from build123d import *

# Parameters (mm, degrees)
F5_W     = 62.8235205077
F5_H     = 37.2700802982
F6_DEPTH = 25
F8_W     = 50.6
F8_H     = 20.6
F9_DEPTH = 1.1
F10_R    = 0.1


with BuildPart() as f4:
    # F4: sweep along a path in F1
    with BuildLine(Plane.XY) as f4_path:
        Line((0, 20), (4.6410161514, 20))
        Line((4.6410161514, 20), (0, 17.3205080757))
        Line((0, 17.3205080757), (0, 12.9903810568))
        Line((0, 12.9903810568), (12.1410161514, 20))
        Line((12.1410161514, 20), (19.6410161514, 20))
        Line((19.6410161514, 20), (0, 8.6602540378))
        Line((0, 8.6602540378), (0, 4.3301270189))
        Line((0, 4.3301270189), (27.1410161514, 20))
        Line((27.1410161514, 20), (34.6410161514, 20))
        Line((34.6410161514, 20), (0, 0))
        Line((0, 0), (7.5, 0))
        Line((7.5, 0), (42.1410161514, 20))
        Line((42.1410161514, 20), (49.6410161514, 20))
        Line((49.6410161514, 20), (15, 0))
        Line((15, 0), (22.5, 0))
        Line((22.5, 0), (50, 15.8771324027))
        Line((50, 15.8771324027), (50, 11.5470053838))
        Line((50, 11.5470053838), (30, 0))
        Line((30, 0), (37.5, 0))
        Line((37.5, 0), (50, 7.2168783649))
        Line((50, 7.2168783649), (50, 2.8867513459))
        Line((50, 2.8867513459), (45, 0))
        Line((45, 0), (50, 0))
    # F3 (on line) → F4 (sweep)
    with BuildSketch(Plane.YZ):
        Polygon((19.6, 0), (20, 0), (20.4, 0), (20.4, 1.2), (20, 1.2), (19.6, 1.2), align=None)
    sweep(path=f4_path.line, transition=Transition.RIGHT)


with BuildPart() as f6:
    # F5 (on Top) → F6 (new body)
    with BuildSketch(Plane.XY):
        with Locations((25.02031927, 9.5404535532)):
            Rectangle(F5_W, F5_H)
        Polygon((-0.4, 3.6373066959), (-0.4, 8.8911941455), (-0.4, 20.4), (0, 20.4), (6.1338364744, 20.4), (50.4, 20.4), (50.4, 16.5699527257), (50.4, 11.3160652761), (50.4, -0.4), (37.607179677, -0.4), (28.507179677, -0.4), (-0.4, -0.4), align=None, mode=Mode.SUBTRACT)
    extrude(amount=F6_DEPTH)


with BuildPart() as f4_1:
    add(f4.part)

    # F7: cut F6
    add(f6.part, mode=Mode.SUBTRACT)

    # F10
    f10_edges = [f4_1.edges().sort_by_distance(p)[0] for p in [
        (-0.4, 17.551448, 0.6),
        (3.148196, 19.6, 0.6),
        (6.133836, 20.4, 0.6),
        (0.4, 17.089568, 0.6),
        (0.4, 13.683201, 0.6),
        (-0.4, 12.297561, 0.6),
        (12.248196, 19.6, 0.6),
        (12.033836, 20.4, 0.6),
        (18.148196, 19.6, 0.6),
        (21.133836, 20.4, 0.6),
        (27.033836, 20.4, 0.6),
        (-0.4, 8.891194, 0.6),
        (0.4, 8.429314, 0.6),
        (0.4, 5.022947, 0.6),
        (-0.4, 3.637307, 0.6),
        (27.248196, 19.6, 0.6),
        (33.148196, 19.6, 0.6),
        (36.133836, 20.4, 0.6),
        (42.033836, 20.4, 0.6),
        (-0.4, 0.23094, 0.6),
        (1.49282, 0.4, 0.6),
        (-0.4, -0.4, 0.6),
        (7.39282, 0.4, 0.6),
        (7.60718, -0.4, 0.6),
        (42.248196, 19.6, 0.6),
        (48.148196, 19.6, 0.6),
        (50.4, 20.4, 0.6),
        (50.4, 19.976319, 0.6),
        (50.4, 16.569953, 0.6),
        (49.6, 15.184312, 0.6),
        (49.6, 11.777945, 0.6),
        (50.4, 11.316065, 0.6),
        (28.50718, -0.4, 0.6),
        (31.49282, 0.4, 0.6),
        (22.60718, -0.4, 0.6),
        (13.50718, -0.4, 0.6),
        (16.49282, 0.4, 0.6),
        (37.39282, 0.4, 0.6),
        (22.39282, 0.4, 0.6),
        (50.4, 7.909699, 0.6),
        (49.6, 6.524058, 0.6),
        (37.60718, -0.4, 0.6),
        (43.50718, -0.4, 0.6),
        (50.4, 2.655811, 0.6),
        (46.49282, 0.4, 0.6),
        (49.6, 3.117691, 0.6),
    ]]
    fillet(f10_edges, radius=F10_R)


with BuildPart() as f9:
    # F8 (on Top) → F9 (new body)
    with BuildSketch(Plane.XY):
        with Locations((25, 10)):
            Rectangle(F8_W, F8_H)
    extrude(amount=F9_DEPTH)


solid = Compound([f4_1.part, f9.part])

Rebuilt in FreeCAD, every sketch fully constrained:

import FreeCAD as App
import Part
import Sketcher

V = App.Vector
Q = App.Units.Quantity


def edges_at(feature, points):
    """Names of the edges that pass closest to the given points."""
    edges = feature.Shape.Edges
    near = lambda p: min(range(len(edges)), key=lambda i: edges[i].distToShape(Part.Vertex(*p))[0])
    return sorted({f"Edge{near(p) + 1}" for p in points})

doc = App.newDocument("Part")
body = doc.addObject("PartDesign::Body", "Body")

# Sketch on YZ plane
sketch1 = body.newObject("Sketcher::SketchObject", "Sketch")
sketch1.AttachmentSupport = (doc.getObject("YZ_Plane"), [""])
sketch1.MapMode = "FlatFace"
sketch1.addGeometry([
    Part.LineSegment(V(19.6, 0, 0), V(20.4, 0, 0)),
    Part.LineSegment(V(20.4, 0, 0), V(20.4, 1.2, 0)),
    Part.LineSegment(V(20.4, 1.2, 0), V(19.6, 1.2, 0)),
    Part.LineSegment(V(19.6, 1.2, 0), V(19.6, 0, 0)),
], False)
sketch1.addConstraint([
    Sketcher.Constraint("Coincident", 0, 2, 1, 1),
    Sketcher.Constraint("Coincident", 1, 2, 2, 1),
    Sketcher.Constraint("Coincident", 2, 2, 3, 1),
    Sketcher.Constraint("Coincident", 3, 2, 0, 1),
    Sketcher.Constraint("Horizontal", 0),
    Sketcher.Constraint("Vertical", 1),
    Sketcher.Constraint("Horizontal", 2),
    Sketcher.Constraint("Vertical", 3),
    Sketcher.Constraint("PointOnObject", 0, 2, -1),
    Sketcher.Constraint("DistanceX", 0, 1, 0, 2, Q("0.8 mm")),
    Sketcher.Constraint("DistanceY", 1, 1, 1, 2, Q("1.2 mm")),
    Sketcher.Constraint("DistanceX", -1, 1, 0, 2, Q("20.4 mm")),
])

# Sketch on XY plane
sketch2 = body.newObject("Sketcher::SketchObject", "Sketch001")
sketch2.AttachmentSupport = (doc.getObject("XY_Plane"), [""])
sketch2.MapMode = "FlatFace"
sketch2.addGeometry([
    Part.LineSegment(V(0, 20, 0), V(4.6, 20, 0)),  # 0
    Part.LineSegment(V(4.6, 20, 0), V(0, 17.3, 0)),  # 1
    Part.LineSegment(V(0, 17.3, 0), V(0, 13, 0)),  # 2
    Part.LineSegment(V(0, 13, 0), V(12.1, 20, 0)),  # 3
    Part.LineSegment(V(12.1, 20, 0), V(19.6, 20, 0)),  # 4
    Part.LineSegment(V(19.6, 20, 0), V(0, 8.7, 0)),  # 5
    Part.LineSegment(V(0, 8.7, 0), V(0, 4.3, 0)),  # 6
    Part.LineSegment(V(0, 4.3, 0), V(27.1, 20, 0)),  # 7
    Part.LineSegment(V(27.1, 20, 0), V(34.6, 20, 0)),  # 8
    Part.LineSegment(V(34.6, 20, 0), V(0, 0, 0)),  # 9
    Part.LineSegment(V(0, 0, 0), V(7.5, 0, 0)),  # 10
    Part.LineSegment(V(7.5, 0, 0), V(42.1, 20, 0)),  # 11
    Part.LineSegment(V(42.1, 20, 0), V(49.6, 20, 0)),  # 12
    Part.LineSegment(V(49.6, 20, 0), V(15, 0, 0)),  # 13
    Part.LineSegment(V(15, 0, 0), V(22.5, 0, 0)),  # 14
    Part.LineSegment(V(22.5, 0, 0), V(50, 15.9, 0)),  # 15
    Part.LineSegment(V(50, 15.9, 0), V(50, 11.5, 0)),  # 16
    Part.LineSegment(V(50, 11.5, 0), V(30, 0, 0)),  # 17
    Part.LineSegment(V(30, 0, 0), V(37.5, 0, 0)),  # 18
    Part.LineSegment(V(37.5, 0, 0), V(50, 7.2, 0)),  # 19
    Part.LineSegment(V(50, 7.2, 0), V(50, 2.9, 0)),  # 20
    Part.LineSegment(V(50, 2.9, 0), V(45, 0, 0)),  # 21
    Part.LineSegment(V(45, 0, 0), V(50, 0, 0)),  # 22
], False)
sketch2.addConstraint([
    Sketcher.Constraint("Coincident", 0, 2, 1, 1),
    Sketcher.Constraint("Coincident", 1, 2, 2, 1),
    Sketcher.Constraint("Coincident", 2, 2, 3, 1),
    Sketcher.Constraint("Coincident", 3, 2, 4, 1),
    Sketcher.Constraint("Coincident", 4, 2, 5, 1),
    Sketcher.Constraint("Coincident", 5, 2, 6, 1),
    Sketcher.Constraint("Coincident", 6, 2, 7, 1),
    Sketcher.Constraint("Coincident", 7, 2, 8, 1),
    Sketcher.Constraint("Coincident", 8, 2, 9, 1),
    Sketcher.Constraint("Coincident", 9, 2, 10, 1),
    Sketcher.Constraint("Coincident", 10, 2, 11, 1),
    Sketcher.Constraint("Coincident", 11, 2, 12, 1),
    Sketcher.Constraint("Coincident", 12, 2, 13, 1),
    Sketcher.Constraint("Coincident", 13, 2, 14, 1),
    Sketcher.Constraint("Coincident", 14, 2, 15, 1),
    Sketcher.Constraint("Coincident", 15, 2, 16, 1),
    Sketcher.Constraint("Coincident", 16, 2, 17, 1),
    Sketcher.Constraint("Coincident", 17, 2, 18, 1),
    Sketcher.Constraint("Coincident", 18, 2, 19, 1),
    Sketcher.Constraint("Coincident", 19, 2, 20, 1),
    Sketcher.Constraint("Coincident", 20, 2, 21, 1),
    Sketcher.Constraint("Coincident", 21, 2, 22, 1),
    Sketcher.Constraint("Horizontal", 0),
    Sketcher.Constraint("Vertical", 2),
    Sketcher.Constraint("Horizontal", 4),
    Sketcher.Constraint("Vertical", 6),
    Sketcher.Constraint("Horizontal", 8),
    Sketcher.Constraint("Horizontal", 10),
    Sketcher.Constraint("Horizontal", 12),
    Sketcher.Constraint("Horizontal", 14),
    Sketcher.Constraint("Vertical", 16),
    Sketcher.Constraint("Horizontal", 18),
    Sketcher.Constraint("Vertical", 20),
    Sketcher.Constraint("Horizontal", 22),
    Sketcher.Constraint("Coincident", 9, 2, -1, 1),
    Sketcher.Constraint("PointOnObject", 0, 1, -2),
    Sketcher.Constraint("PointOnObject", 1, 2, -2),
    Sketcher.Constraint("PointOnObject", 5, 2, -2),
    Sketcher.Constraint("PointOnObject", 13, 2, -1),
    Sketcher.Constraint("PointOnObject", 17, 2, -1),
    Sketcher.Constraint("PointOnObject", 21, 2, -1),
    Sketcher.Constraint("Parallel", 1, 3),
    Sketcher.Constraint("Parallel", 3, 5),
    Sketcher.Constraint("Parallel", 5, 7),
    Sketcher.Constraint("Parallel", 7, 9),
    Sketcher.Constraint("Parallel", 9, 11),
    Sketcher.Constraint("Parallel", 11, 13),
    Sketcher.Constraint("Parallel", 13, 15),
    Sketcher.Constraint("Parallel", 15, 17),
    Sketcher.Constraint("Parallel", 17, 19),
    Sketcher.Constraint("Parallel", 19, 21),
    Sketcher.Constraint("Horizontal", 0, 2, 3, 2),
    Sketcher.Constraint("Horizontal", 4, 2, 7, 2),
    Sketcher.Constraint("Horizontal", 8, 2, 11, 2),
    Sketcher.Constraint("Vertical", 16, 2, 19, 2),
    Sketcher.Constraint("Vertical", 20, 2, 22, 2),
    Sketcher.Constraint("Equal", 4, 8),
    Sketcher.Constraint("Equal", 8, 10),
    Sketcher.Constraint("Equal", 10, 12),
    Sketcher.Constraint("Equal", 12, 14),
    Sketcher.Constraint("Equal", 14, 18),
    Sketcher.Constraint("Equal", 2, 6),
    Sketcher.Constraint("Equal", 6, 16),
    Sketcher.Constraint("Equal", 16, 20),
    Sketcher.Constraint("DistanceX", 22, 1, 22, 2, Q("5 mm")),
    Sketcher.Constraint("Angle", 1, Q("-150 deg")),
    Sketcher.Constraint("Distance", 9, Q("40 mm")),
    Sketcher.Constraint("DistanceX", 4, 1, 4, 2, Q("7.5 mm")),
    Sketcher.Constraint("DistanceX", -1, 1, 15, 2, Q("50 mm")),
])
doc.recompute()

additivepipe = body.newObject("PartDesign::AdditivePipe", "AdditivePipe")
additivepipe.Profile = sketch1
additivepipe.Spine = (sketch2, ["Edge1", "Edge2", "Edge3", "Edge4", "Edge5", "Edge6", "Edge7", "Edge8", "Edge9", "Edge10", "Edge11", "Edge12", "Edge13", "Edge14", "Edge15", "Edge16", "Edge17", "Edge18", "Edge19", "Edge20", "Edge21", "Edge22", "Edge23"])
additivepipe.Transition = "Right corner"
body2 = doc.addObject("PartDesign::Body", "Body001")

# Sketch on XY plane
sketch3 = body2.newObject("Sketcher::SketchObject", "Sketch002")
sketch3.AttachmentSupport = (doc.getObject("XY_Plane001"), [""])
sketch3.MapMode = "FlatFace"
sketch3.addGeometry([
    Part.LineSegment(V(-6, 28, 0), V(-6, -9, 0)),  # 0
    Part.LineSegment(V(-6, -9, 0), V(56, -9, 0)),  # 1
    Part.LineSegment(V(56, -9, 0), V(56, 28, 0)),  # 2
    Part.LineSegment(V(56, 28, 0), V(-6, 28, 0)),  # 3
    Part.LineSegment(V(0, 0, 0), V(0, 20, 0)),  # 4
    Part.LineSegment(V(0, 20, 0), V(50, 20, 0)),  # 5
    Part.LineSegment(V(50, 20, 0), V(50, 0, 0)),  # 6
    Part.LineSegment(V(50, 0, 0), V(0, 0, 0)),  # 7
], False)
sketch3.addConstraint([
    Sketcher.Constraint("Coincident", 0, 2, 1, 1),
    Sketcher.Constraint("Coincident", 1, 2, 2, 1),
    Sketcher.Constraint("Coincident", 2, 2, 3, 1),
    Sketcher.Constraint("Coincident", 3, 2, 0, 1),
    Sketcher.Constraint("Coincident", 4, 2, 5, 1),
    Sketcher.Constraint("Coincident", 5, 2, 6, 1),
    Sketcher.Constraint("Coincident", 6, 2, 7, 1),
    Sketcher.Constraint("Coincident", 7, 2, 4, 1),
    Sketcher.Constraint("Vertical", 0),
    Sketcher.Constraint("Horizontal", 1),
    Sketcher.Constraint("Vertical", 2),
    Sketcher.Constraint("Horizontal", 3),
    Sketcher.Constraint("Vertical", 4),
    Sketcher.Constraint("Horizontal", 5),
    Sketcher.Constraint("Vertical", 6),
    Sketcher.Constraint("Horizontal", 7),
    Sketcher.Constraint("DistanceX", 5, 1, 5, 2, Q("50.8 mm")),
    Sketcher.Constraint("DistanceY", 4, 1, 4, 2, Q("20.8 mm")),
    Sketcher.Constraint("DistanceX", 4, 2, -1, 1, Q("0.4 mm")),
    Sketcher.Constraint("DistanceY", -1, 1, 4, 2, Q("20.4 mm")),
    Sketcher.Constraint("DistanceX", 1, 1, 1, 2, Q("62.823521 mm")),
    Sketcher.Constraint("DistanceY", 0, 2, 0, 1, Q("37.27008 mm")),
    Sketcher.Constraint("DistanceX", 0, 2, -1, 1, Q("6.391441 mm")),
    Sketcher.Constraint("DistanceY", 0, 2, -1, 1, Q("9.094587 mm")),
])
pad1 = body2.newObject("PartDesign::Pad", "Pad")
pad1.Profile = sketch3
pad1.Length = 25
doc.recompute()

boolean = body.newObject("PartDesign::Boolean", "Boolean")
boolean.Type = "Cut"
boolean.addObjects([body2])
doc.recompute()

fillet = body.newObject("PartDesign::Fillet", "Fillet")
fillet.Base = (boolean, edges_at(boolean, [
    (-0.4, 17.551, 0.6),
    (3.148, 19.6, 0.6),
    (6.134, 20.4, 0.6),
    (0.4, 17.09, 0.6),
    (0.4, 13.683, 0.6),
    (-0.4, 12.298, 0.6),
    (12.248, 19.6, 0.6),
    (12.034, 20.4, 0.6),
    (18.148, 19.6, 0.6),
    (21.134, 20.4, 0.6),
    (27.034, 20.4, 0.6),
    (-0.4, 8.891, 0.6),
    (0.4, 8.429, 0.6),
    (0.4, 5.023, 0.6),
    (-0.4, 3.637, 0.6),
    (27.248, 19.6, 0.6),
    (33.148, 19.6, 0.6),
    (36.134, 20.4, 0.6),
    (42.034, 20.4, 0.6),
    (-0.4, 0.231, 0.6),
    (1.493, 0.4, 0.6),
    (-0.4, -0.4, 0.6),
    (7.393, 0.4, 0.6),
    (7.607, -0.4, 0.6),
    (42.248, 19.6, 0.6),
    (48.148, 19.6, 0.6),
    (50.4, 20.4, 0.6),
    (50.4, 19.976, 0.6),
    (50.4, 16.57, 0.6),
    (49.6, 15.184, 0.6),
    (49.6, 11.778, 0.6),
    (50.4, 11.316, 0.6),
    (28.507, -0.4, 0.6),
    (31.493, 0.4, 0.6),
    (22.607, -0.4, 0.6),
    (13.507, -0.4, 0.6),
    (16.493, 0.4, 0.6),
    (37.393, 0.4, 0.6),
    (22.393, 0.4, 0.6),
    (50.4, 7.91, 0.6),
    (49.6, 6.524, 0.6),
    (37.607, -0.4, 0.6),
    (43.507, -0.4, 0.6),
    (50.4, 2.656, 0.6),
    (46.493, 0.4, 0.6),
    (49.6, 3.118, 0.6),
]))
fillet.Radius = 0.1
body3 = doc.addObject("PartDesign::Body", "Body002")

# Sketch on XY plane
sketch4 = body3.newObject("Sketcher::SketchObject", "Sketch003")
sketch4.AttachmentSupport = (doc.getObject("XY_Plane002"), [""])
sketch4.MapMode = "FlatFace"
sketch4.addGeometry([
    Part.LineSegment(V(0, 20, 0), V(0, 0, 0)),
    Part.LineSegment(V(0, 0, 0), V(50, 0, 0)),
    Part.LineSegment(V(50, 0, 0), V(50, 20, 0)),
    Part.LineSegment(V(50, 20, 0), V(0, 20, 0)),
], False)
sketch4.addConstraint([
    Sketcher.Constraint("Coincident", 0, 2, 1, 1),
    Sketcher.Constraint("Coincident", 1, 2, 2, 1),
    Sketcher.Constraint("Coincident", 2, 2, 3, 1),
    Sketcher.Constraint("Coincident", 3, 2, 0, 1),
    Sketcher.Constraint("Vertical", 0),
    Sketcher.Constraint("Horizontal", 1),
    Sketcher.Constraint("Vertical", 2),
    Sketcher.Constraint("Horizontal", 3),
    Sketcher.Constraint("DistanceX", 1, 1, 1, 2, Q("50.6 mm")),
    Sketcher.Constraint("DistanceY", 0, 2, 0, 1, Q("20.6 mm")),
    Sketcher.Constraint("DistanceX", 0, 2, -1, 1, Q("0.3 mm")),
    Sketcher.Constraint("DistanceY", 0, 2, -1, 1, Q("0.3 mm")),
])
pad2 = body3.newObject("PartDesign::Pad", "Pad001")
pad2.Profile = sketch4
pad2.Length = 1.1

doc.recompute()
